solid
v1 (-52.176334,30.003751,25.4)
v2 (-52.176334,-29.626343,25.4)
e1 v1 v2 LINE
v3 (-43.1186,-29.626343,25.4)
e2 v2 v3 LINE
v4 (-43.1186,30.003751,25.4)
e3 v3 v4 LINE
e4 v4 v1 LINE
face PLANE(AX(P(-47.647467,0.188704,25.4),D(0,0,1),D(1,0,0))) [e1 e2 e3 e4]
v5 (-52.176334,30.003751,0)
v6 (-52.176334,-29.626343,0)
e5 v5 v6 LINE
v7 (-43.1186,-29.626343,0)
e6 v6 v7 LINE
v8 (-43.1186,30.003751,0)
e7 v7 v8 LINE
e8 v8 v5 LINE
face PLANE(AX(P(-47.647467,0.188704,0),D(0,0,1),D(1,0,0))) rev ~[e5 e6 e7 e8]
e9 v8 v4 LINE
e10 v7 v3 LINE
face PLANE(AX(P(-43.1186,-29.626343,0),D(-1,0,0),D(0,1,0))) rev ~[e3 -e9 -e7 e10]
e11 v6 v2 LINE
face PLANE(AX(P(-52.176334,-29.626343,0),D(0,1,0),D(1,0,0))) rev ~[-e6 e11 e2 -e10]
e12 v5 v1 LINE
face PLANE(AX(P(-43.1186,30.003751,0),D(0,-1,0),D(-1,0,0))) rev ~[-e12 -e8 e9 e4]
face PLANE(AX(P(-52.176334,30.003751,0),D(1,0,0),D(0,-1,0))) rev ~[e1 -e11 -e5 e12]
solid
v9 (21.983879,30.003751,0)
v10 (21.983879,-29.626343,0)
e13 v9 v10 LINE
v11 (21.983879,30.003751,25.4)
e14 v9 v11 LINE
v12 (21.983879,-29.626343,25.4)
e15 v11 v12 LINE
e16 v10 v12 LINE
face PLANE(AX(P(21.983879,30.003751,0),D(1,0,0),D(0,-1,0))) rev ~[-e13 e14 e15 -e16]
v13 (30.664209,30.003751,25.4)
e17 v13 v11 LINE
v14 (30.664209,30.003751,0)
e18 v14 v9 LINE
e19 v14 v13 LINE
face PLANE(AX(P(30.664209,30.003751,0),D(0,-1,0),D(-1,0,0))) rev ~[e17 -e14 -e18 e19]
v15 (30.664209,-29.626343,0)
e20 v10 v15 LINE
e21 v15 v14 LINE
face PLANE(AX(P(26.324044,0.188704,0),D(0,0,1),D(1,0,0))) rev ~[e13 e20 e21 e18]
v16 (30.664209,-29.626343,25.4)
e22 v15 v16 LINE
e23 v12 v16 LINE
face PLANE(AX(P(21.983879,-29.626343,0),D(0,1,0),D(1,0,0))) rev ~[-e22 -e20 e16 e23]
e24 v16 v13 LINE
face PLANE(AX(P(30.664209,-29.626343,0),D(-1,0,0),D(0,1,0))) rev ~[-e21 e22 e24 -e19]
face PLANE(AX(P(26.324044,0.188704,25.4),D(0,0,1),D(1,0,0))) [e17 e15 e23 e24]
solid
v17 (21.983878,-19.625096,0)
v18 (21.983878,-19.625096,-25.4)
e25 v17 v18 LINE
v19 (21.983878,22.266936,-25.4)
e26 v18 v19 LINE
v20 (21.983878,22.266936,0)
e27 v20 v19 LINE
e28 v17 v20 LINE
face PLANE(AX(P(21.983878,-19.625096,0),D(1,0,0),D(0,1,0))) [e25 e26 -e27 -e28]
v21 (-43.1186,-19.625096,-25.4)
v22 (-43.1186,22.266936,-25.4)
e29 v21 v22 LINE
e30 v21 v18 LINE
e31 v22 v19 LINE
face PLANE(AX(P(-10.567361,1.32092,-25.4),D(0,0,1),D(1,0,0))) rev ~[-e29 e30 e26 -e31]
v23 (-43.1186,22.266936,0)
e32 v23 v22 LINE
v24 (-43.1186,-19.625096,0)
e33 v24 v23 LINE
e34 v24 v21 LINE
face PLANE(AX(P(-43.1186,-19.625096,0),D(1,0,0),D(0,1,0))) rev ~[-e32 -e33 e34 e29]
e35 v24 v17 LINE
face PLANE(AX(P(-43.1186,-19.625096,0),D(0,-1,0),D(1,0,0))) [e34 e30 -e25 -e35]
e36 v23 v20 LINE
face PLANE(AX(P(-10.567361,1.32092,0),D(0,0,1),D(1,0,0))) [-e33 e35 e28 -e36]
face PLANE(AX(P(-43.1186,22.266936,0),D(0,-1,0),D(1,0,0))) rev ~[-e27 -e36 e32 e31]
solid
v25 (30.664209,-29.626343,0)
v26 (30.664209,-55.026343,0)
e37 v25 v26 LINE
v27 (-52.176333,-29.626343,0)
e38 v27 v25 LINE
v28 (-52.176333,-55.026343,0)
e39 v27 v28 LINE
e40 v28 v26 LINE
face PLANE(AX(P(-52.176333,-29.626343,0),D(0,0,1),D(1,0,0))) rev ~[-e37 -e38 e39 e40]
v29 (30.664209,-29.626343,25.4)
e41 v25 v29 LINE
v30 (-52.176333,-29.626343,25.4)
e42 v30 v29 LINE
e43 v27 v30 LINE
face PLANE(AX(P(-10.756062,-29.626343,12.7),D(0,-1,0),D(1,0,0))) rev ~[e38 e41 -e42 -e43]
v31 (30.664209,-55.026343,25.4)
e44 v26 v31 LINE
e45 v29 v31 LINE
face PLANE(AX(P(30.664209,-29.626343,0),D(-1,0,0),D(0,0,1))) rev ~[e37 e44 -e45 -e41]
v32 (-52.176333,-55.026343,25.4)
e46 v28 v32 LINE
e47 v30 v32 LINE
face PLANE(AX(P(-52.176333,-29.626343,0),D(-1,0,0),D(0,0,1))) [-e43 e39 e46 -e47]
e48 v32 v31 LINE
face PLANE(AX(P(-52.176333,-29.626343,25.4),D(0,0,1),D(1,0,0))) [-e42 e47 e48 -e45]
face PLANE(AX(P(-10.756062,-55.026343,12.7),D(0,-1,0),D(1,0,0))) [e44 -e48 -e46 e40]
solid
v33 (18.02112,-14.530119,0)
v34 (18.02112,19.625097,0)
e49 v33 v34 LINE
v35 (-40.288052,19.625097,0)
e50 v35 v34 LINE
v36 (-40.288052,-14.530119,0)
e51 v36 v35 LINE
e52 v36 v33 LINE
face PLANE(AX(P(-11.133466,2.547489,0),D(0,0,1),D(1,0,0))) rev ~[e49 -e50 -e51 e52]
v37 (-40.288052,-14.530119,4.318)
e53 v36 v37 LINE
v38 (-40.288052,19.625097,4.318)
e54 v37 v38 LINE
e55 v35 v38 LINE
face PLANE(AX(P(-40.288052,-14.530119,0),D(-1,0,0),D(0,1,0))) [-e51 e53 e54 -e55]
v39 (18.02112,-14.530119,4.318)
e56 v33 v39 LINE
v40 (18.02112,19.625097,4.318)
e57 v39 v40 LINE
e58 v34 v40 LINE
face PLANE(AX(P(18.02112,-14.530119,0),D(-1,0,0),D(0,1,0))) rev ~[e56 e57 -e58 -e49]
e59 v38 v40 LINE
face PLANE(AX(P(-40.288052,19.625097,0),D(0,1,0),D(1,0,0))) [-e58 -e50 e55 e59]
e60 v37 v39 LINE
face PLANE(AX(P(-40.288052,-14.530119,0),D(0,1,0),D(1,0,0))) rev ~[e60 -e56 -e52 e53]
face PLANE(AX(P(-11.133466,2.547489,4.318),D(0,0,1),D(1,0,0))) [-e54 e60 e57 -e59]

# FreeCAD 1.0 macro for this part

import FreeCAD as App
import Part
import Sketcher
Q = App.Units.Quantity

doc = App.newDocument("Part")
params = doc.addObject("Spreadsheet::Sheet", "Params")
for row, (alias, value) in enumerate([
    ("pad1_length", "1 in"),
    ("pad2_length", "1 in"),
    ("pad3_length", "0.17 in"),
    ("sketch4_height", "1 in"),
    ("pad4_length", "1 in"),
], start=1):
    params.set(f"A{row}", alias)
    params.set(f"B{row}", "=" + value)
    params.setAlias(f"B{row}", alias)

body = doc.addObject("PartDesign::Body", "Body")
body.AllowCompound = True

# Sketch on XY plane
sketch1 = body.newObject("Sketcher::SketchObject", "Sketch")
sketch1.AttachmentSupport = (doc.getObject("XY_Plane"), [""])
sketch1.MapMode = "FlatFace"
sketch1.addGeometry(Part.LineSegment(App.Vector(-43.1186, 30.003751, 0), App.Vector(-52.176334, 30.003751, 0)), False)
sketch1.addGeometry(Part.LineSegment(App.Vector(-52.176334, 30.003751, 0), App.Vector(-52.176334, -29.626343, 0)), False)
sketch1.addGeometry(Part.LineSegment(App.Vector(-52.176334, -29.626343, 0), App.Vector(-43.1186, -29.626343, 0)), False)
sketch1.addGeometry(Part.LineSegment(App.Vector(-43.1186, -29.626343, 0), App.Vector(-43.1186, 30.003751, 0)), False)
sketch1.addGeometry(Part.LineSegment(App.Vector(21.983879, 30.003751, 0), App.Vector(21.983879, -29.626343, 0)), False)
sketch1.addGeometry(Part.LineSegment(App.Vector(21.983879, -29.626343, 0), App.Vector(30.664209, -29.626343, 0)), False)
sketch1.addGeometry(Part.LineSegment(App.Vector(30.664209, -29.626343, 0), App.Vector(30.664209, 30.003751, 0)), False)
sketch1.addGeometry(Part.LineSegment(App.Vector(30.664209, 30.003751, 0), App.Vector(21.983879, 30.003751, 0)), False)
sketch1.addConstraint(Sketcher.Constraint("Coincident", 0, 2, 1, 1))
sketch1.addConstraint(Sketcher.Constraint("Coincident", 1, 2, 2, 1))
sketch1.addConstraint(Sketcher.Constraint("Coincident", 2, 2, 3, 1))
sketch1.addConstraint(Sketcher.Constraint("Coincident", 3, 2, 0, 1))
sketch1.addConstraint(Sketcher.Constraint("Coincident", 4, 2, 5, 1))
sketch1.addConstraint(Sketcher.Constraint("Coincident", 5, 2, 6, 1))
sketch1.addConstraint(Sketcher.Constraint("Coincident", 6, 2, 7, 1))
sketch1.addConstraint(Sketcher.Constraint("Coincident", 7, 2, 4, 1))
sketch1.addConstraint(Sketcher.Constraint("Horizontal", 0))
sketch1.addConstraint(Sketcher.Constraint("Vertical", 1))
sketch1.addConstraint(Sketcher.Constraint("Horizontal", 2))
sketch1.addConstraint(Sketcher.Constraint("Vertical", 3))
sketch1.addConstraint(Sketcher.Constraint("Vertical", 4))
sketch1.addConstraint(Sketcher.Constraint("Horizontal", 5))
sketch1.addConstraint(Sketcher.Constraint("Vertical", 6))
sketch1.addConstraint(Sketcher.Constraint("Horizontal", 7))
sketch1.addConstraint(Sketcher.Constraint("Horizontal", 2, 2, 4, 2))
sketch1.addConstraint(Sketcher.Constraint("Horizontal", 3, 2, 6, 2))
sketch1.addConstraint(Sketcher.Constraint("DistanceX", 5, 1, 5, 2, Q("8.68033 mm")))
sketch1.addConstraint(Sketcher.Constraint("DistanceX", 2, 2, -1, 1, Q("43.1186 mm")))
sketch1.addConstraint(Sketcher.Constraint("DistanceX", 0, 2, 0, 1, Q("9.057734 mm")))
sketch1.addConstraint(Sketcher.Constraint("DistanceY", 1, 2, 1, 1, Q("59.630094 mm")))
sketch1.addConstraint(Sketcher.Constraint("DistanceY", -1, 1, 0, 2, Q("30.003751 mm")))
sketch1.addConstraint(Sketcher.Constraint("DistanceX", -1, 1, 4, 2, Q("21.983879 mm")))
pad1 = body.newObject("PartDesign::Pad", "Pad")
pad1.Profile = sketch1
pad1.setExpression("Length", "Params.pad1_length")
body2 = doc.addObject("PartDesign::Body", "Body001")

# Sketch on XY plane
sketch2 = body2.newObject("Sketcher::SketchObject", "Sketch001")
sketch2.AttachmentSupport = (doc.getObject("XY_Plane001"), [""])
sketch2.MapMode = "FlatFace"
sketch2.addGeometry(Part.LineSegment(App.Vector(-43.1186, 22.266936, 0), App.Vector(-43.1186, -19.625096, 0)), False)
sketch2.addGeometry(Part.LineSegment(App.Vector(-43.1186, -19.625096, 0), App.Vector(21.983878, -19.625096, 0)), False)
sketch2.addGeometry(Part.LineSegment(App.Vector(21.983878, -19.625096, 0), App.Vector(21.983878, 22.266936, 0)), False)
sketch2.addGeometry(Part.LineSegment(App.Vector(21.983878, 22.266936, 0), App.Vector(-43.1186, 22.266936, 0)), False)
sketch2.addConstraint(Sketcher.Constraint("Coincident", 0, 2, 1, 1))
sketch2.addConstraint(Sketcher.Constraint("Coincident", 1, 2, 2, 1))
sketch2.addConstraint(Sketcher.Constraint("Coincident", 2, 2, 3, 1))
sketch2.addConstraint(Sketcher.Constraint("Coincident", 3, 2, 0, 1))
sketch2.addConstraint(Sketcher.Constraint("Vertical", 0))
sketch2.addConstraint(Sketcher.Constraint("Horizontal", 1))
sketch2.addConstraint(Sketcher.Constraint("Vertical", 2))
sketch2.addConstraint(Sketcher.Constraint("Horizontal", 3))
sketch2.addConstraint(Sketcher.Constraint("DistanceX", 1, 1, 1, 2, Q("65.102479 mm")))
sketch2.addConstraint(Sketcher.Constraint("DistanceX", 0, 2, -1, 1, Q("43.1186 mm")))
sketch2.addConstraint(Sketcher.Constraint("DistanceY", 0, 2, 0, 1, Q("41.892032 mm")))
sketch2.addConstraint(Sketcher.Constraint("DistanceY", 0, 2, -1, 1, Q("19.625096 mm")))
pad2 = body2.newObject("PartDesign::Pad", "Pad001")
pad2.Profile = sketch2
pad2.setExpression("Length", "Params.pad2_length")
pad2.Reversed = True
body3 = doc.addObject("PartDesign::Body", "Body002")

# Sketch on XY plane
sketch3 = body3.newObject("Sketcher::SketchObject", "Sketch002")
sketch3.AttachmentSupport = (doc.getObject("XY_Plane002"), [""])
sketch3.MapMode = "FlatFace"
sketch3.addGeometry(Part.LineSegment(App.Vector(-40.288052, 19.625097, 0), App.Vector(-40.288052, -14.530119, 0)), False)
sketch3.addGeometry(Part.LineSegment(App.Vector(-40.288052, -14.530119, 0), App.Vector(18.02112, -14.530119, 0)), False)
sketch3.addGeometry(Part.LineSegment(App.Vector(18.02112, -14.530119, 0), App.Vector(18.02112, 19.625097, 0)), False)
sketch3.addGeometry(Part.LineSegment(App.Vector(18.02112, 19.625097, 0), App.Vector(-40.288052, 19.625097, 0)), False)
sketch3.addConstraint(Sketcher.Constraint("Coincident", 0, 2, 1, 1))
sketch3.addConstraint(Sketcher.Constraint("Coincident", 1, 2, 2, 1))
sketch3.addConstraint(Sketcher.Constraint("Coincident", 2, 2, 3, 1))
sketch3.addConstraint(Sketcher.Constraint("Coincident", 3, 2, 0, 1))
sketch3.addConstraint(Sketcher.Constraint("Vertical", 0))
sketch3.addConstraint(Sketcher.Constraint("Horizontal", 1))
sketch3.addConstraint(Sketcher.Constraint("Vertical", 2))
sketch3.addConstraint(Sketcher.Constraint("Horizontal", 3))
sketch3.addConstraint(Sketcher.Constraint("DistanceX", 1, 1, 1, 2, Q("58.309173 mm")))
sketch3.addConstraint(Sketcher.Constraint("DistanceY", 0, 2, 0, 1, Q("34.155215 mm")))
sketch3.addConstraint(Sketcher.Constraint("DistanceY", 0, 2, -1, 1, Q("14.530119 mm")))
sketch3.addConstraint(Sketcher.Constraint("DistanceX", -1, 1, 1, 2, Q("18.02112 mm")))
pad3 = body3.newObject("PartDesign::Pad", "Pad002")
pad3.Profile = sketch3
pad3.setExpression("Length", "Params.pad3_length")
body4 = doc.addObject("PartDesign::Body", "Body003")

# Sketch on XZ plane
sketch4 = body4.newObject("Sketcher::SketchObject", "Sketch003")
sketch4.AttachmentSupport = (doc.getObject("XZ_Plane003"), [""])
sketch4.MapMode = "FlatFace"
sketch4.AttachmentOffset = App.Placement(App.Vector(0, 0, 29.626343), App.Rotation())
sketch4.addGeometry(Part.LineSegment(App.Vector(-52.176333, 25.4, 0), App.Vector(-52.176333, 0, 0)), False)
sketch4.addGeometry(Part.LineSegment(App.Vector(-52.176333, 0, 0), App.Vector(30.664209, 0, 0)), False)
sketch4.addGeometry(Part.LineSegment(App.Vector(30.664209, 0, 0), App.Vector(30.664209, 25.4, 0)), False)
sketch4.addGeometry(Part.LineSegment(App.Vector(30.664209, 25.4, 0), App.Vector(-52.176333, 25.4, 0)), False)
sketch4.addConstraint(Sketcher.Constraint("Coincident", 0, 2, 1, 1))
sketch4.addConstraint(Sketcher.Constraint("Coincident", 1, 2, 2, 1))
sketch4.addConstraint(Sketcher.Constraint("Coincident", 2, 2, 3, 1))
sketch4.addConstraint(Sketcher.Constraint("Coincident", 3, 2, 0, 1))
sketch4.addConstraint(Sketcher.Constraint("Vertical", 0))
sketch4.addConstraint(Sketcher.Constraint("Horizontal", 1))
sketch4.addConstraint(Sketcher.Constraint("Vertical", 2))
sketch4.addConstraint(Sketcher.Constraint("Horizontal", 3))
sketch4.addConstraint(Sketcher.Constraint("PointOnObject", 0, 2, -1))
sketch4.addConstraint(Sketcher.Constraint("DistanceY", 0, 2, 0, 1, Q("1 in")))
sketch4.addConstraint(Sketcher.Constraint("DistanceX", 1, 1, 1, 2, Q("82.840543 mm")))
sketch4.addConstraint(Sketcher.Constraint("DistanceX", -1, 1, 1, 2, Q("30.664209 mm")))
sketch4.setExpression("Constraints[9]", "Params.sketch4_height")
pad4 = body4.newObject("PartDesign::Pad", "Pad003")
pad4.Profile = sketch4
pad4.setExpression("Length", "Params.pad4_length")

doc.recompute()
